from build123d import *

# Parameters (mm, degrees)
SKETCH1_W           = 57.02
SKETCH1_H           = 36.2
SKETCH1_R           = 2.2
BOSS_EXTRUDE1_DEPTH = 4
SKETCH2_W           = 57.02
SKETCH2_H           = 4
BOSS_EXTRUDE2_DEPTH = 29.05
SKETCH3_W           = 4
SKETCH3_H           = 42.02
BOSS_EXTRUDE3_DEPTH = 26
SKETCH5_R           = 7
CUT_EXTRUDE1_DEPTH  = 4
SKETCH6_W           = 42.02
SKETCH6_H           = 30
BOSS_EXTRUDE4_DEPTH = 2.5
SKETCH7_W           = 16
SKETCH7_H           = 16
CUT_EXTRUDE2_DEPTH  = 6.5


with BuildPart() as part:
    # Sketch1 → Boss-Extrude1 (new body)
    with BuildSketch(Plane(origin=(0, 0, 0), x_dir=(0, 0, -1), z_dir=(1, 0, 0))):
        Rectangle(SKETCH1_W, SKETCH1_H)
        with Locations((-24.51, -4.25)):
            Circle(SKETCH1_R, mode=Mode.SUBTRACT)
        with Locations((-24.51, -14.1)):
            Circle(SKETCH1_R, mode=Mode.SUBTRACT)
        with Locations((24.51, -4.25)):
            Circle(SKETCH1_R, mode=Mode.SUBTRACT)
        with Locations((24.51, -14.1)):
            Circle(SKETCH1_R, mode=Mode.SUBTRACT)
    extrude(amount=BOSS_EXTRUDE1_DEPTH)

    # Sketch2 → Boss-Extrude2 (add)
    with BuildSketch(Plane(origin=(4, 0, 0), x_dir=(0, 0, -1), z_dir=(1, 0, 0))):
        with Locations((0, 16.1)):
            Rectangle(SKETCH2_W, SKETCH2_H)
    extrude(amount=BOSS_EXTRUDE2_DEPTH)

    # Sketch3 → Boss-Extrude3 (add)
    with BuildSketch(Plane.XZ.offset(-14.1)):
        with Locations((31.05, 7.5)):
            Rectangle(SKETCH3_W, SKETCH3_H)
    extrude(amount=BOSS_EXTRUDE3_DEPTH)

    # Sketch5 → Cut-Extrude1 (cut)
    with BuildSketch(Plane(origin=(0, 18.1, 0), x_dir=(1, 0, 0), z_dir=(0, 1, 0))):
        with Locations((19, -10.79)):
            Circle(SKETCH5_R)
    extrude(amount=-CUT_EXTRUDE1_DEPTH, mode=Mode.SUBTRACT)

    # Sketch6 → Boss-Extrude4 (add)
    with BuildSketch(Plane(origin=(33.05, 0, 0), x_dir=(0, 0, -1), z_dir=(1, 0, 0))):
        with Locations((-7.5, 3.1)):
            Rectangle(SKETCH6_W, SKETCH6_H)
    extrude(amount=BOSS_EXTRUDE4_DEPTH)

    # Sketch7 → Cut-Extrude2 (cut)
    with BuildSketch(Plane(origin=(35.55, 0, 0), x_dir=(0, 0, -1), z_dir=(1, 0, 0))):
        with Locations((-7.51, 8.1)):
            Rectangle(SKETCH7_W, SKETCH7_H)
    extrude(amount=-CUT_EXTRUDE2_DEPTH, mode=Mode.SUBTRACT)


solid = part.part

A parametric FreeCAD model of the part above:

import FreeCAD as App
import Part
import Sketcher
Q = App.Units.Quantity

doc = App.newDocument("Part")
body = doc.addObject("PartDesign::Body", "Body")

sketch1 = body.newObject("Sketcher::SketchObject", "Sketch")
sketch1.AttachmentSupport = (doc.getObject("YZ_Plane"), [""])
sketch1.MapMode = "FlatFace"
sketch1.addGeometry([
    Part.LineSegment(App.Vector(18.1, 28.5, 0), App.Vector(-18.1, 28.5, 0)),
    Part.LineSegment(App.Vector(-18.1, 28.5, 0), App.Vector(-18.1, -28.5, 0)),
    Part.LineSegment(App.Vector(-18.1, -28.5, 0), App.Vector(18.1, -28.5, 0)),
    Part.LineSegment(App.Vector(18.1, -28.5, 0), App.Vector(18.1, 28.5, 0)),
    Part.Circle(App.Vector(-14.1, 24.5, 0), App.Vector(0, 0, 1), 2.2),
    Part.Circle(App.Vector(-14.1, -24.5, 0), App.Vector(0, 0, 1), 2.2),
    Part.Circle(App.Vector(-4.2, 24.5, 0), App.Vector(0, 0, 1), 2.2),
    Part.Circle(App.Vector(-4.2, -24.5, 0), App.Vector(0, 0, 1), 2.2),
], False)
sketch1.addConstraint([
    Sketcher.Constraint("Coincident", 0, 2, 1, 1),
    Sketcher.Constraint("Coincident", 1, 2, 2, 1),
    Sketcher.Constraint("Coincident", 2, 2, 3, 1),
    Sketcher.Constraint("Coincident", 3, 2, 0, 1),
    Sketcher.Constraint("Horizontal", 0),
    Sketcher.Constraint("Vertical", 1),
    Sketcher.Constraint("Horizontal", 2),
    Sketcher.Constraint("Vertical", 3),
    Sketcher.Constraint("Equal", 4, 5),
    Sketcher.Constraint("Equal", 5, 6),
    Sketcher.Constraint("Equal", 6, 7),
    Sketcher.Constraint("Symmetric", 0, 2, 2, 2, -1, 1),
    Sketcher.Constraint("Symmetric", 4, 3, 5, 3, -1),
    Sketcher.Constraint("Symmetric", 6, 3, 7, 3, -1),
    Sketcher.Constraint("Horizontal", 4, 3, 6, 3),
    Sketcher.Constraint("Diameter", 4, Q("4.4 mm")),
    Sketcher.Constraint("DistanceX", 0, 2, 0, 1, Q("36.2 mm")),
    Sketcher.Constraint("DistanceX", 0, 2, 4, 3, Q("4 mm")),
    Sketcher.Constraint("DistanceY", 4, 3, 0, 2, Q("4 mm")),
    Sketcher.Constraint("DistanceY", 1, 2, 1, 1, Q("57.02 mm")),
    Sketcher.Constraint("DistanceX", 6, 3, -1, 1, Q("4.25 mm")),
])
pad1 = body.newObject("PartDesign::Pad", "Pad")
pad1.Profile = sketch1
pad1.Length = 4

sketch2 = body.newObject("Sketcher::SketchObject", "Sketch001")
sketch2.AttachmentSupport = (doc.getObject("YZ_Plane"), [""])
sketch2.MapMode = "FlatFace"
sketch2.AttachmentOffset = App.Placement(App.Vector(0, 0, 4), App.Rotation())
sketch2.addGeometry([
    Part.LineSegment(App.Vector(18.1, 28.5, 0), App.Vector(14.1, 28.5, 0)),
    Part.LineSegment(App.Vector(14.1, 28.5, 0), App.Vector(14.1, -28.5, 0)),
    Part.LineSegment(App.Vector(14.1, -28.5, 0), App.Vector(18.1, -28.5, 0)),
    Part.LineSegment(App.Vector(18.1, -28.5, 0), App.Vector(18.1, 28.5, 0)),
], False)
sketch2.addConstraint([
    Sketcher.Constraint("Coincident", 0, 2, 1, 1),
    Sketcher.Constraint("Coincident", 1, 2, 2, 1),
    Sketcher.Constraint("Coincident", 2, 2, 3, 1),
    Sketcher.Constraint("Coincident", 3, 2, 0, 1),
    Sketcher.Constraint("Horizontal", 0),
    Sketcher.Constraint("Vertical", 1),
    Sketcher.Constraint("Horizontal", 2),
    Sketcher.Constraint("Vertical", 3),
    Sketcher.Constraint("DistanceX", 0, 2, 0, 1, Q("4 mm")),
    Sketcher.Constraint("DistanceY", 1, 2, 1, 1, Q("57.02 mm")),
    Sketcher.Constraint("DistanceX", -1, 1, 0, 2, Q("14.1 mm")),
    Sketcher.Constraint("DistanceY", -1, 1, 0, 2, Q("28.51 mm")),
])
pad2 = body.newObject("PartDesign::Pad", "Pad001")
pad2.Profile = sketch2
pad2.Length = 29.05

sketch3 = body.newObject("Sketcher::SketchObject", "Sketch002")
sketch3.AttachmentSupport = (doc.getObject("XZ_Plane"), [""])
sketch3.MapMode = "FlatFace"
sketch3.AttachmentOffset = App.Placement(App.Vector(0, 0, -14.1), App.Rotation())
sketch3.addGeometry([
    Part.LineSegment(App.Vector(29.1, 28.5, 0), App.Vector(29.1, -13.5, 0)),
    Part.LineSegment(App.Vector(29.1, -13.5, 0), App.Vector(33, -13.5, 0)),
    Part.LineSegment(App.Vector(33, -13.5, 0), App.Vector(33, 28.5, 0)),
    Part.LineSegment(App.Vector(33, 28.5, 0), App.Vector(29.1, 28.5, 0)),
], False)
sketch3.addConstraint([
    Sketcher.Constraint("Coincident", 0, 2, 1, 1),
    Sketcher.Constraint("Coincident", 1, 2, 2, 1),
    Sketcher.Constraint("Coincident", 2, 2, 3, 1),
    Sketcher.Constraint("Coincident", 3, 2, 0, 1),
    Sketcher.Constraint("Vertical", 0),
    Sketcher.Constraint("Horizontal", 1),
    Sketcher.Constraint("Vertical", 2),
    Sketcher.Constraint("Horizontal", 3),
    Sketcher.Constraint("DistanceX", 1, 1, 1, 2, Q("4 mm")),
    Sketcher.Constraint("DistanceY", 0, 2, 0, 1, Q("42.02 mm")),
    Sketcher.Constraint("DistanceX", -1, 1, 0, 2, Q("29.05 mm")),
    Sketcher.Constraint("DistanceY", 0, 2, -1, 1, Q("13.51 mm")),
])
pad3 = body.newObject("PartDesign::Pad", "Pad002")
pad3.Profile = sketch3
pad3.Length = 26

sketch4 = body.newObject("Sketcher::SketchObject", "Sketch003")
sketch4.AttachmentSupport = (doc.getObject("XZ_Plane"), [""])
sketch4.MapMode = "FlatFace"
sketch4.AttachmentOffset = App.Placement(App.Vector(0, 0, -18.1), App.Rotation())
sketch4.addGeometry(Part.Circle(App.Vector(19, 11, 0), App.Vector(0, 0, 1), 7), False)
sketch4.addConstraint([
    Sketcher.Constraint("Diameter", 0, Q("14 mm")),
    Sketcher.Constraint("DistanceX", -1, 1, 0, 3, Q("19 mm")),
    Sketcher.Constraint("DistanceY", -1, 1, 0, 3, Q("10.79 mm")),
])
pocket1 = body.newObject("PartDesign::Pocket", "Pocket")
pocket1.Profile = sketch4
pocket1.Length = 4
pocket1.Reversed = True

sketch5 = body.newObject("Sketcher::SketchObject", "Sketch004")
sketch5.AttachmentSupport = (doc.getObject("YZ_Plane"), [""])
sketch5.MapMode = "FlatFace"
sketch5.AttachmentOffset = App.Placement(App.Vector(0, 0, 33.05), App.Rotation())
sketch5.addGeometry([
    Part.LineSegment(App.Vector(18, 29, 0), App.Vector(-12, 29, 0)),
    Part.LineSegment(App.Vector(-12, 29, 0), App.Vector(-12, -14, 0)),
    Part.LineSegment(App.Vector(-12, -14, 0), App.Vector(18, -14, 0)),
    Part.LineSegment(App.Vector(18, -14, 0), App.Vector(18, 29, 0)),
], False)
sketch5.addConstraint([
    Sketcher.Constraint("Coincident", 0, 2, 1, 1),
    Sketcher.Constraint("Coincident", 1, 2, 2, 1),
    Sketcher.Constraint("Coincident", 2, 2, 3, 1),
    Sketcher.Constraint("Coincident", 3, 2, 0, 1),
    Sketcher.Constraint("Horizontal", 0),
    Sketcher.Constraint("Vertical", 1),
    Sketcher.Constraint("Horizontal", 2),
    Sketcher.Constraint("Vertical", 3),
    Sketcher.Constraint("DistanceX", 0, 2, 0, 1, Q("30 mm")),
    Sketcher.Constraint("DistanceY", 1, 2, 1, 1, Q("42.02 mm")),
    Sketcher.Constraint("DistanceX", 0, 2, -1, 1, Q("11.9 mm")),
    Sketcher.Constraint("DistanceY", -1, 1, 0, 2, Q("28.51 mm")),
])
pad4 = body.newObject("PartDesign::Pad", "Pad003")
pad4.Profile = sketch5
pad4.Length = 2.5

sketch6 = body.newObject("Sketcher::SketchObject", "Sketch005")
sketch6.AttachmentSupport = (doc.getObject("YZ_Plane"), [""])
sketch6.MapMode = "FlatFace"
sketch6.AttachmentOffset = App.Placement(App.Vector(0, 0, 35.55), App.Rotation())
sketch6.addGeometry([
    Part.LineSegment(App.Vector(16, 16, 0), App.Vector(0, 16, 0)),
    Part.LineSegment(App.Vector(0, 16, 0), App.Vector(0, 0, 0)),
    Part.LineSegment(App.Vector(0, 0, 0), App.Vector(16, 0, 0)),
    Part.LineSegment(App.Vector(16, 0, 0), App.Vector(16, 16, 0)),
], False)
sketch6.addConstraint([
    Sketcher.Constraint("Coincident", 0, 2, 1, 1),
    Sketcher.Constraint("Coincident", 1, 2, 2, 1),
    Sketcher.Constraint("Coincident", 2, 2, 3, 1),
    Sketcher.Constraint("Coincident", 3, 2, 0, 1),
    Sketcher.Constraint("Horizontal", 0),
    Sketcher.Constraint("Vertical", 1),
    Sketcher.Constraint("Horizontal", 2),
    Sketcher.Constraint("Vertical", 3),
    Sketcher.Constraint("Equal", 2, 1),
    Sketcher.Constraint("DistanceX", 0, 2, 0, 1, Q("16 mm")),
    Sketcher.Constraint("DistanceX", -1, 1, 0, 2, Q("0.1 mm")),
    Sketcher.Constraint("DistanceY", -1, 1, 0, 2, Q("15.51 mm")),
])
pocket2 = body.newObject("PartDesign::Pocket", "Pocket001")
pocket2.Profile = sketch6
pocket2.Length = 6.5

doc.recompute()
